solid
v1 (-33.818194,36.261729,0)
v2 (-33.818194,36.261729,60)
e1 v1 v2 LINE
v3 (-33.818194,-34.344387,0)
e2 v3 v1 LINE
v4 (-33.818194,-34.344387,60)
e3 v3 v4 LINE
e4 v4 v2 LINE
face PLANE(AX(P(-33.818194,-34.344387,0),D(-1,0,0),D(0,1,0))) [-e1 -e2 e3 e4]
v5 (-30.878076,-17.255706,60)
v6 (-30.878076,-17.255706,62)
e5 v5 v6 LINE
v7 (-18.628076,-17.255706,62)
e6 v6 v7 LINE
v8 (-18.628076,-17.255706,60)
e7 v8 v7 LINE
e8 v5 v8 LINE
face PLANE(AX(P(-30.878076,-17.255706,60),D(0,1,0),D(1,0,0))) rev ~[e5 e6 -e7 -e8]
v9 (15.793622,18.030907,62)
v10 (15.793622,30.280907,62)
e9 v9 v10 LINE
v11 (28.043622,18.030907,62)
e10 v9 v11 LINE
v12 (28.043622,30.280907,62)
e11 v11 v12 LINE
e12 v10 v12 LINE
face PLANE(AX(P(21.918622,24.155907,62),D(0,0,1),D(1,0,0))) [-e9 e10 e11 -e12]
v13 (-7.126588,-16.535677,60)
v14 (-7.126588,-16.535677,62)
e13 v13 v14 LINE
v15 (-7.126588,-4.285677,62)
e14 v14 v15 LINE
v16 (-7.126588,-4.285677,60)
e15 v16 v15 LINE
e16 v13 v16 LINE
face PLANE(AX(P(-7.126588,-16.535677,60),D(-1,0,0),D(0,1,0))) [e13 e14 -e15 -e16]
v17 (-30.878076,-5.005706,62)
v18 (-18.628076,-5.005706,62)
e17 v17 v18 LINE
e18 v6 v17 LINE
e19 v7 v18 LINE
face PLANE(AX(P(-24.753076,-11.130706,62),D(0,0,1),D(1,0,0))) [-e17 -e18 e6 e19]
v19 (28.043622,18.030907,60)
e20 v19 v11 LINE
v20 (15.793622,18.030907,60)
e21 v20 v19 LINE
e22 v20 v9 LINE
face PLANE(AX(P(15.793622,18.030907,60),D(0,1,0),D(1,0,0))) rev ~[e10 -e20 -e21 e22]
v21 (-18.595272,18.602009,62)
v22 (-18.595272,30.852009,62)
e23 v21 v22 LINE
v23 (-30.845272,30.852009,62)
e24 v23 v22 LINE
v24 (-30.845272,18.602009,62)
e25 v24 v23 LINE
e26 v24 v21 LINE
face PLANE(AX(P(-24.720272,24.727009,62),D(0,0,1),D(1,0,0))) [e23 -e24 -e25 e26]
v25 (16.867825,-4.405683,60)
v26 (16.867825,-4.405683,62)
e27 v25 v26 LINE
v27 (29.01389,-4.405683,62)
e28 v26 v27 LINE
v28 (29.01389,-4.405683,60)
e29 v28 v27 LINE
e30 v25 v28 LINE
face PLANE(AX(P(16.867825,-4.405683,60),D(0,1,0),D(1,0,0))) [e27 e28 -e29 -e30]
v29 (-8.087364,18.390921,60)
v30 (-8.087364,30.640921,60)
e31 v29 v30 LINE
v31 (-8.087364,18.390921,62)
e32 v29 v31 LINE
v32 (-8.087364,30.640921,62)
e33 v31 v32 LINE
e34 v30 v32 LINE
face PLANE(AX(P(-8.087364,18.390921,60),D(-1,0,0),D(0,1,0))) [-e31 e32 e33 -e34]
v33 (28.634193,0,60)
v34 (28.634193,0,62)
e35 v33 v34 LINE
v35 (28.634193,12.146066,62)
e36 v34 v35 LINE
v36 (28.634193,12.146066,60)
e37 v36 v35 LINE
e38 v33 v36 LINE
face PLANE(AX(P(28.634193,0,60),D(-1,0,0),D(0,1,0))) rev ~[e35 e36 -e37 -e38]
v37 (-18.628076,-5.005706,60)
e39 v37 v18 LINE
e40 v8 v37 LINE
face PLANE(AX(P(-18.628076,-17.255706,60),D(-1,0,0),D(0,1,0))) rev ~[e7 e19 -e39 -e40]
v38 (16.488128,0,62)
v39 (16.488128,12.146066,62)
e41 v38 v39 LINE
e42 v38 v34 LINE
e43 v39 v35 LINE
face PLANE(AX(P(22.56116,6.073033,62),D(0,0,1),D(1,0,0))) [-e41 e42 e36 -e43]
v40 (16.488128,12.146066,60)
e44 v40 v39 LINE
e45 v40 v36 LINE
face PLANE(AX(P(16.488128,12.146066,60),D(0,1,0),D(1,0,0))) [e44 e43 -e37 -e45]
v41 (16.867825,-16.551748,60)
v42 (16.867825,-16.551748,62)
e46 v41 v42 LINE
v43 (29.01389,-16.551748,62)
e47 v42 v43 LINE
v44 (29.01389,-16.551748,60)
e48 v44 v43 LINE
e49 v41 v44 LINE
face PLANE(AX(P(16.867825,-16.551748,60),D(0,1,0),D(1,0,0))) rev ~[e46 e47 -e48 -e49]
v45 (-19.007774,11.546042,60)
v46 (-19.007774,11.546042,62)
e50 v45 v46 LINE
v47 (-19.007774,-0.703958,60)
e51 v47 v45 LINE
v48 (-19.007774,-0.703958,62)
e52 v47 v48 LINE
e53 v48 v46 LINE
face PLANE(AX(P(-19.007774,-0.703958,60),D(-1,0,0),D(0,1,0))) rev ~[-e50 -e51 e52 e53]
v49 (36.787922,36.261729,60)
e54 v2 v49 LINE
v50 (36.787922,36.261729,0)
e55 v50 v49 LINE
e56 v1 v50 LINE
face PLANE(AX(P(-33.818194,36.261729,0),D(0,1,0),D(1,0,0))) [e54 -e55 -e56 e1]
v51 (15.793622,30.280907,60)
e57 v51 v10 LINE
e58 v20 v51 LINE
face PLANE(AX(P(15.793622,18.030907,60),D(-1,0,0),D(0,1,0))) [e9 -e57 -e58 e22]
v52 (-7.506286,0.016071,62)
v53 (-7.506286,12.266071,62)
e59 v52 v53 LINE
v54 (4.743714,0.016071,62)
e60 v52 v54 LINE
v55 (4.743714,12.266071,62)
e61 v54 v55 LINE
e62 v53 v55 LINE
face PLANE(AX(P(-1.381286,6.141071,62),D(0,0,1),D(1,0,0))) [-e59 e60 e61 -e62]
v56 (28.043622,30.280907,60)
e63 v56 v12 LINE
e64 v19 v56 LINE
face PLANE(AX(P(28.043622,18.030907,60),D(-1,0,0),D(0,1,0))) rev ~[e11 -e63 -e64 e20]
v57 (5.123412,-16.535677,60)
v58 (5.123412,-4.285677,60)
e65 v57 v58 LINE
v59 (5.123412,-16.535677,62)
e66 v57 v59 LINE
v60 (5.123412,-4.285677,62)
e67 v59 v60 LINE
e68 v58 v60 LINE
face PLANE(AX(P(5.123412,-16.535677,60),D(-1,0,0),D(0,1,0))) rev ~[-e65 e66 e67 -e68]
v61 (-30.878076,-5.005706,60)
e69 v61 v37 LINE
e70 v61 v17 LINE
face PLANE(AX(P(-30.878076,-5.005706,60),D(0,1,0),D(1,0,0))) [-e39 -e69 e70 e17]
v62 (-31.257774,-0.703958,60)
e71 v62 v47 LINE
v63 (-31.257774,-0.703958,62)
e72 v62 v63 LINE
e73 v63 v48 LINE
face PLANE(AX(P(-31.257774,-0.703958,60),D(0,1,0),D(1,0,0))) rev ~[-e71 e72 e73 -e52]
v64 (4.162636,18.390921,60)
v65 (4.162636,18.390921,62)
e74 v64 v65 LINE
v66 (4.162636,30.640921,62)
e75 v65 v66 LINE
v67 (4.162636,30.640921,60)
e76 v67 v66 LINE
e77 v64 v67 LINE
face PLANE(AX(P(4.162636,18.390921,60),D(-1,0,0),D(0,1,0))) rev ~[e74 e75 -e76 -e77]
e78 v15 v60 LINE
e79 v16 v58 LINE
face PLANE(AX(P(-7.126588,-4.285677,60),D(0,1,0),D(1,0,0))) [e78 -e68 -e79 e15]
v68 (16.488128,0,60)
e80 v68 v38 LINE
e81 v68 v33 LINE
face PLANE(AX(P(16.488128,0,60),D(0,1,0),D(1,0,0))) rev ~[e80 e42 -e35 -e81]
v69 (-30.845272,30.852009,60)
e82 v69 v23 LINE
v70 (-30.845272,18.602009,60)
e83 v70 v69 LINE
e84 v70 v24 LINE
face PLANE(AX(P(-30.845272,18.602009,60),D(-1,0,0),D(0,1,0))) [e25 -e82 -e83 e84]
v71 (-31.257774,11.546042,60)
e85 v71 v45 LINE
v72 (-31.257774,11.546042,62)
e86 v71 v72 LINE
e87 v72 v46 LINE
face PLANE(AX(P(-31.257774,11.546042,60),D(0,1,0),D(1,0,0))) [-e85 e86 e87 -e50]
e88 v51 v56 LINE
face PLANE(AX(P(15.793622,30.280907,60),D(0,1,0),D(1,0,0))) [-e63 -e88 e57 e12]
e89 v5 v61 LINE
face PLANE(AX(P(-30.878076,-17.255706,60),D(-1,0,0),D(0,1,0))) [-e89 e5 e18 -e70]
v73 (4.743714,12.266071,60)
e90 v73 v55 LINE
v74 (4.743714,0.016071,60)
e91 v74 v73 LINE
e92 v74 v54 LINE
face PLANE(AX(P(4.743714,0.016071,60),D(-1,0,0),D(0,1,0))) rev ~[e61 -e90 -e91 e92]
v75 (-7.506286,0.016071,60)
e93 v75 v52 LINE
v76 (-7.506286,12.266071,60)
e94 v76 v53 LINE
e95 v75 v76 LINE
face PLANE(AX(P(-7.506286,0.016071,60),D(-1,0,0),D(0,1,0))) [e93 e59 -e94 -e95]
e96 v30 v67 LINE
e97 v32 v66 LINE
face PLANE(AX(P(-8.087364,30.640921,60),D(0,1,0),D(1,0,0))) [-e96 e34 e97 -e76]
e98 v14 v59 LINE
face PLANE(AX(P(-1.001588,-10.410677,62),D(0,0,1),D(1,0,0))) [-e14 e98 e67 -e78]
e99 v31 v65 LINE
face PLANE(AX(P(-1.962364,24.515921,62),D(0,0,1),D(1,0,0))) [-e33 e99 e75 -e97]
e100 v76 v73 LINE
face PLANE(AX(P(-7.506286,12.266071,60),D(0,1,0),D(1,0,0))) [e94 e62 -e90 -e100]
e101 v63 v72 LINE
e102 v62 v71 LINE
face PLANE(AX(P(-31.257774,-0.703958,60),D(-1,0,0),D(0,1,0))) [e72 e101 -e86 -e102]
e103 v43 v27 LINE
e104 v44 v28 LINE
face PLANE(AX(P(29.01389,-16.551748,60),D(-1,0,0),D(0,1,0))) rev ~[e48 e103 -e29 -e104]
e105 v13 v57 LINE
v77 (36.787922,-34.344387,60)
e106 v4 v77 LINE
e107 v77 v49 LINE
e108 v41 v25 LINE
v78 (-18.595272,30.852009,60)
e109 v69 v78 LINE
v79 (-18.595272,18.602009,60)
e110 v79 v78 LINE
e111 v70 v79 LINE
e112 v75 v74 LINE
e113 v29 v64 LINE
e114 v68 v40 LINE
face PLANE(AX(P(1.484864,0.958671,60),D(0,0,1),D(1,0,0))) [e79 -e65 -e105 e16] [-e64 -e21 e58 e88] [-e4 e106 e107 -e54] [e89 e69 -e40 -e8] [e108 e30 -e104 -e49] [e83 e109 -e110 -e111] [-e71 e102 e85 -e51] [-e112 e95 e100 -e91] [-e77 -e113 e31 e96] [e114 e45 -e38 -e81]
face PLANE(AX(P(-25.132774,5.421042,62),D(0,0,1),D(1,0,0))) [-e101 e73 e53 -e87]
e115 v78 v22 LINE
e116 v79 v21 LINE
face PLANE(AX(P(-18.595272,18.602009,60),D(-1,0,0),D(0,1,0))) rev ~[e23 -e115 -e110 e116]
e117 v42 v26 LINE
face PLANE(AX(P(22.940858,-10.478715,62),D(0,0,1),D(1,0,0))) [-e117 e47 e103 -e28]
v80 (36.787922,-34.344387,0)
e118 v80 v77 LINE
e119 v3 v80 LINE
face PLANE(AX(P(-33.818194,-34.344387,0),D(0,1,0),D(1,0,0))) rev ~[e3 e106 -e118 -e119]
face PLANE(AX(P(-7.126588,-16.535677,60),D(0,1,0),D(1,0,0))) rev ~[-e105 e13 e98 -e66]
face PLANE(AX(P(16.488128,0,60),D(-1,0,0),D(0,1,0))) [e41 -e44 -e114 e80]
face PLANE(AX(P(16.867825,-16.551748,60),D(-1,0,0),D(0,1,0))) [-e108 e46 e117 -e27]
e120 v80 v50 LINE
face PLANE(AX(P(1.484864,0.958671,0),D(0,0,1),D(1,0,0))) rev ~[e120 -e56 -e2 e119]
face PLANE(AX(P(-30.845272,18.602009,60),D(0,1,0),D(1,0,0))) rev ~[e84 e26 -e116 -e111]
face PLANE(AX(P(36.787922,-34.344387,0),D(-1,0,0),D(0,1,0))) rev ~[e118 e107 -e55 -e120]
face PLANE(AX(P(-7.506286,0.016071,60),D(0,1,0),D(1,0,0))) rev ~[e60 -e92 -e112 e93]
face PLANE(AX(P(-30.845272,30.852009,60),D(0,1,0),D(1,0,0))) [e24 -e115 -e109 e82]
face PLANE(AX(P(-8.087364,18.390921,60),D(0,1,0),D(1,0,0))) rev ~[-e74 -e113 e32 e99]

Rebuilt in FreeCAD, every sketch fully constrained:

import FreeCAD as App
import Part
import Sketcher
from FreeCAD import Vector
Q = App.Units.Quantity

doc = App.newDocument("Part")
body = doc.addObject("PartDesign::Body", "Body")

# Sketch on XY plane
sketch1 = body.newObject("Sketcher::SketchObject", "Sketch")
sketch1.AttachmentSupport = (doc.getObject("XY_Plane"), [""])
sketch1.MapMode = "FlatFace"
sketch1.addGeometry([
    Part.LineSegment(Vector(-34, 36, 0), Vector(-34, -34, 0)),
    Part.LineSegment(Vector(-34, -34, 0), Vector(37, -34, 0)),
    Part.LineSegment(Vector(37, -34, 0), Vector(37, 36, 0)),
    Part.LineSegment(Vector(37, 36, 0), Vector(-34, 36, 0)),
], False)
sketch1.addConstraint([
    Sketcher.Constraint("Coincident", 0, 2, 1, 1),
    Sketcher.Constraint("Coincident", 1, 2, 2, 1),
    Sketcher.Constraint("Coincident", 2, 2, 3, 1),
    Sketcher.Constraint("Coincident", 3, 2, 0, 1),
    Sketcher.Constraint("Vertical", 0),
    Sketcher.Constraint("Horizontal", 1),
    Sketcher.Constraint("Vertical", 2),
    Sketcher.Constraint("Horizontal", 3),
    Sketcher.Constraint("Equal", 3, 0),
    Sketcher.Constraint("DistanceX", 1, 1, 1, 2, Q("70.606116 mm")),
    Sketcher.Constraint("DistanceY", -1, 1, 2, 2, Q("36.261729 mm")),
    Sketcher.Constraint("DistanceX", 0, 2, -1, 1, Q("33.818194 mm")),
])
pad1 = body.newObject("PartDesign::Pad", "Pad")
pad1.Profile = sketch1
pad1.Length = 60

# Sketch on XY plane
sketch2 = body.newObject("Sketcher::SketchObject", "Sketch001")
sketch2.AttachmentSupport = (doc.getObject("XY_Plane"), [""])
sketch2.MapMode = "FlatFace"
sketch2.AttachmentOffset = App.Placement(Vector(0, 0, 60), App.Rotation())
sketch2.addGeometry([
    Part.LineSegment(Vector(-31, 31, 0), Vector(-31, 19, 0)),  # 0
    Part.LineSegment(Vector(-31, 19, 0), Vector(-19, 19, 0)),  # 1
    Part.LineSegment(Vector(-19, 19, 0), Vector(-19, 31, 0)),  # 2
    Part.LineSegment(Vector(-19, 31, 0), Vector(-31, 31, 0)),  # 3
    Part.LineSegment(Vector(-8, 31, 0), Vector(-8, 18, 0)),  # 4
    Part.LineSegment(Vector(-8, 18, 0), Vector(4, 18, 0)),  # 5
    Part.LineSegment(Vector(4, 18, 0), Vector(4, 31, 0)),  # 6
    Part.LineSegment(Vector(4, 31, 0), Vector(-8, 31, 0)),  # 7
    Part.LineSegment(Vector(16, 30, 0), Vector(16, 18, 0)),  # 8
    Part.LineSegment(Vector(16, 18, 0), Vector(28, 18, 0)),  # 9
    Part.LineSegment(Vector(28, 18, 0), Vector(28, 30, 0)),  # 10
    Part.LineSegment(Vector(28, 30, 0), Vector(16, 30, 0)),  # 11
    Part.LineSegment(Vector(-31, 12, 0), Vector(-31, -1, 0)),  # 12
    Part.LineSegment(Vector(-31, -1, 0), Vector(-19, -1, 0)),  # 13
    Part.LineSegment(Vector(-19, -1, 0), Vector(-19, 12, 0)),  # 14
    Part.LineSegment(Vector(-19, 12, 0), Vector(-31, 12, 0)),  # 15
    Part.LineSegment(Vector(-8, 12, 0), Vector(-8, 0, 0)),  # 16
    Part.LineSegment(Vector(-8, 0, 0), Vector(5, 0, 0)),  # 17
    Part.LineSegment(Vector(5, 0, 0), Vector(5, 12, 0)),  # 18
    Part.LineSegment(Vector(5, 12, 0), Vector(-8, 12, 0)),  # 19
    Part.LineSegment(Vector(16, 12, 0), Vector(16, 0, 0)),  # 20
    Part.LineSegment(Vector(16, 0, 0), Vector(29, 0, 0)),  # 21
    Part.LineSegment(Vector(29, 0, 0), Vector(29, 12, 0)),  # 22
    Part.LineSegment(Vector(29, 12, 0), Vector(16, 12, 0)),  # 23
    Part.LineSegment(Vector(-31, -5, 0), Vector(-31, -17, 0)),  # 24
    Part.LineSegment(Vector(-31, -17, 0), Vector(-19, -17, 0)),  # 25
    Part.LineSegment(Vector(-19, -17, 0), Vector(-19, -5, 0)),  # 26
    Part.LineSegment(Vector(-19, -5, 0), Vector(-31, -5, 0)),  # 27
    Part.LineSegment(Vector(-7, -4, 0), Vector(-7, -17, 0)),  # 28
    Part.LineSegment(Vector(-7, -17, 0), Vector(5, -17, 0)),  # 29
    Part.LineSegment(Vector(5, -17, 0), Vector(5, -4, 0)),  # 30
    Part.LineSegment(Vector(5, -4, 0), Vector(-7, -4, 0)),  # 31
    Part.LineSegment(Vector(17, -4, 0), Vector(17, -17, 0)),  # 32
    Part.LineSegment(Vector(17, -17, 0), Vector(29, -17, 0)),  # 33
    Part.LineSegment(Vector(29, -17, 0), Vector(29, -4, 0)),  # 34
    Part.LineSegment(Vector(29, -4, 0), Vector(17, -4, 0)),  # 35
], False)
sketch2.addConstraint([
    Sketcher.Constraint("Coincident", 0, 2, 1, 1),
    Sketcher.Constraint("Coincident", 1, 2, 2, 1),
    Sketcher.Constraint("Coincident", 2, 2, 3, 1),
    Sketcher.Constraint("Coincident", 3, 2, 0, 1),
    Sketcher.Constraint("Coincident", 4, 2, 5, 1),
    Sketcher.Constraint("Coincident", 5, 2, 6, 1),
    Sketcher.Constraint("Coincident", 6, 2, 7, 1),
    Sketcher.Constraint("Coincident", 7, 2, 4, 1),
    Sketcher.Constraint("Coincident", 8, 2, 9, 1),
    Sketcher.Constraint("Coincident", 9, 2, 10, 1),
    Sketcher.Constraint("Coincident", 10, 2, 11, 1),
    Sketcher.Constraint("Coincident", 11, 2, 8, 1),
    Sketcher.Constraint("Coincident", 12, 2, 13, 1),
    Sketcher.Constraint("Coincident", 13, 2, 14, 1),
    Sketcher.Constraint("Coincident", 14, 2, 15, 1),
    Sketcher.Constraint("Coincident", 15, 2, 12, 1),
    Sketcher.Constraint("Coincident", 16, 2, 17, 1),
    Sketcher.Constraint("Coincident", 17, 2, 18, 1),
    Sketcher.Constraint("Coincident", 18, 2, 19, 1),
    Sketcher.Constraint("Coincident", 19, 2, 16, 1),
    Sketcher.Constraint("Coincident", 20, 2, 21, 1),
    Sketcher.Constraint("Coincident", 21, 2, 22, 1),
    Sketcher.Constraint("Coincident", 22, 2, 23, 1),
    Sketcher.Constraint("Coincident", 23, 2, 20, 1),
    Sketcher.Constraint("Coincident", 24, 2, 25, 1),
    Sketcher.Constraint("Coincident", 25, 2, 26, 1),
    Sketcher.Constraint("Coincident", 26, 2, 27, 1),
    Sketcher.Constraint("Coincident", 27, 2, 24, 1),
    Sketcher.Constraint("Coincident", 28, 2, 29, 1),
    Sketcher.Constraint("Coincident", 29, 2, 30, 1),
    Sketcher.Constraint("Coincident", 30, 2, 31, 1),
    Sketcher.Constraint("Coincident", 31, 2, 28, 1),
    Sketcher.Constraint("Coincident", 32, 2, 33, 1),
    Sketcher.Constraint("Coincident", 33, 2, 34, 1),
    Sketcher.Constraint("Coincident", 34, 2, 35, 1),
    Sketcher.Constraint("Coincident", 35, 2, 32, 1),
    Sketcher.Constraint("Vertical", 0),
    Sketcher.Constraint("Horizontal", 1),
    Sketcher.Constraint("Vertical", 2),
    Sketcher.Constraint("Horizontal", 3),
    Sketcher.Constraint("Vertical", 4),
    Sketcher.Constraint("Horizontal", 5),
    Sketcher.Constraint("Vertical", 6),
    Sketcher.Constraint("Horizontal", 7),
    Sketcher.Constraint("Vertical", 8),
    Sketcher.Constraint("Horizontal", 9),
    Sketcher.Constraint("Vertical", 10),
    Sketcher.Constraint("Horizontal", 11),
    Sketcher.Constraint("Vertical", 12),
    Sketcher.Constraint("Horizontal", 13),
    Sketcher.Constraint("Vertical", 14),
    Sketcher.Constraint("Horizontal", 15),
    Sketcher.Constraint("Vertical", 16),
    Sketcher.Constraint("Horizontal", 17),
    Sketcher.Constraint("Vertical", 18),
    Sketcher.Constraint("Horizontal", 19),
    Sketcher.Constraint("Vertical", 20),
    Sketcher.Constraint("Horizontal", 21),
    Sketcher.Constraint("Vertical", 22),
    Sketcher.Constraint("Horizontal", 23),
    Sketcher.Constraint("Vertical", 24),
    Sketcher.Constraint("Horizontal", 25),
    Sketcher.Constraint("Vertical", 26),
    Sketcher.Constraint("Horizontal", 27),
    Sketcher.Constraint("Vertical", 28),
    Sketcher.Constraint("Horizontal", 29),
    Sketcher.Constraint("Vertical", 30),
    Sketcher.Constraint("Horizontal", 31),
    Sketcher.Constraint("Vertical", 32),
    Sketcher.Constraint("Horizontal", 33),
    Sketcher.Constraint("Vertical", 34),
    Sketcher.Constraint("Horizontal", 35),
    Sketcher.Constraint("PointOnObject", 20, 2, -1),
    Sketcher.Constraint("Equal", 3, 5),
    Sketcher.Constraint("Equal", 7, 9),
    Sketcher.Constraint("Equal", 11, 13),
    Sketcher.Constraint("Equal", 15, 17),
    Sketcher.Constraint("Equal", 19, 25),
    Sketcher.Constraint("Equal", 27, 29),
    Sketcher.Constraint("Equal", 23, 33),
    Sketcher.Constraint("Equal", 31, 0),
    Sketcher.Constraint("Equal", 2, 4),
    Sketcher.Constraint("Equal", 6, 8),
    Sketcher.Constraint("Equal", 10, 12),
    Sketcher.Constraint("Equal", 14, 16),
    Sketcher.Constraint("Equal", 35, 20),
    Sketcher.Constraint("Equal", 18, 24),
    Sketcher.Constraint("Equal", 26, 28),
    Sketcher.Constraint("Equal", 22, 32),
    Sketcher.Constraint("DistanceX", 1, 1, 1, 2, Q("12.25 mm")),
    Sketcher.Constraint("DistanceY", 8, 2, 1, 2, Q("0.571102 mm")),
    Sketcher.Constraint("DistanceX", 12, 2, 0, 2, Q("0.412502 mm")),
    Sketcher.Constraint("DistanceX", 12, 2, 24, 2, Q("0.379698 mm")),
    Sketcher.Constraint("DistanceX", 16, 2, 28, 2, Q("0.379698 mm")),
    Sketcher.Constraint("DistanceX", 21, 1, 21, 2, Q("12.146065 mm")),
    Sketcher.Constraint("DistanceY", -1, 1, 0, 2, Q("18.602009 mm")),
    Sketcher.Constraint("DistanceY", -1, 1, 4, 2, Q("18.390921 mm")),
    Sketcher.Constraint("DistanceX", -1, 1, 8, 2, Q("15.793622 mm")),
    Sketcher.Constraint("DistanceY", -1, 1, 16, 2, Q("0.016071 mm")),
    Sketcher.Constraint("DistanceX", -1, 1, 33, 2, Q("29.01389 mm")),
    Sketcher.Constraint("DistanceX", 0, 2, 4, 2, Q("22.757908 mm")),
    Sketcher.Constraint("DistanceY", 12, 2, 4, 2, Q("19.094879 mm")),
    Sketcher.Constraint("DistanceX", 13, 2, 16, 2, Q("11.501488 mm")),
    Sketcher.Constraint("DistanceX", 5, 2, 20, 2, Q("12.325492 mm")),
    Sketcher.Constraint("DistanceX", 9, 2, 21, 2, Q("0.590571 mm")),
    Sketcher.Constraint("DistanceY", 24, 2, 12, 2, Q("16.551748 mm")),
    Sketcher.Constraint("DistanceY", 25, 2, 28, 2, Q("0.720029 mm")),
    Sketcher.Constraint("DistanceY", 32, 2, 29, 2, Q("0.016071 mm")),
])
pad2 = body.newObject("PartDesign::Pad", "Pad001")
pad2.Profile = sketch2
pad2.Length = 2

doc.recompute()
